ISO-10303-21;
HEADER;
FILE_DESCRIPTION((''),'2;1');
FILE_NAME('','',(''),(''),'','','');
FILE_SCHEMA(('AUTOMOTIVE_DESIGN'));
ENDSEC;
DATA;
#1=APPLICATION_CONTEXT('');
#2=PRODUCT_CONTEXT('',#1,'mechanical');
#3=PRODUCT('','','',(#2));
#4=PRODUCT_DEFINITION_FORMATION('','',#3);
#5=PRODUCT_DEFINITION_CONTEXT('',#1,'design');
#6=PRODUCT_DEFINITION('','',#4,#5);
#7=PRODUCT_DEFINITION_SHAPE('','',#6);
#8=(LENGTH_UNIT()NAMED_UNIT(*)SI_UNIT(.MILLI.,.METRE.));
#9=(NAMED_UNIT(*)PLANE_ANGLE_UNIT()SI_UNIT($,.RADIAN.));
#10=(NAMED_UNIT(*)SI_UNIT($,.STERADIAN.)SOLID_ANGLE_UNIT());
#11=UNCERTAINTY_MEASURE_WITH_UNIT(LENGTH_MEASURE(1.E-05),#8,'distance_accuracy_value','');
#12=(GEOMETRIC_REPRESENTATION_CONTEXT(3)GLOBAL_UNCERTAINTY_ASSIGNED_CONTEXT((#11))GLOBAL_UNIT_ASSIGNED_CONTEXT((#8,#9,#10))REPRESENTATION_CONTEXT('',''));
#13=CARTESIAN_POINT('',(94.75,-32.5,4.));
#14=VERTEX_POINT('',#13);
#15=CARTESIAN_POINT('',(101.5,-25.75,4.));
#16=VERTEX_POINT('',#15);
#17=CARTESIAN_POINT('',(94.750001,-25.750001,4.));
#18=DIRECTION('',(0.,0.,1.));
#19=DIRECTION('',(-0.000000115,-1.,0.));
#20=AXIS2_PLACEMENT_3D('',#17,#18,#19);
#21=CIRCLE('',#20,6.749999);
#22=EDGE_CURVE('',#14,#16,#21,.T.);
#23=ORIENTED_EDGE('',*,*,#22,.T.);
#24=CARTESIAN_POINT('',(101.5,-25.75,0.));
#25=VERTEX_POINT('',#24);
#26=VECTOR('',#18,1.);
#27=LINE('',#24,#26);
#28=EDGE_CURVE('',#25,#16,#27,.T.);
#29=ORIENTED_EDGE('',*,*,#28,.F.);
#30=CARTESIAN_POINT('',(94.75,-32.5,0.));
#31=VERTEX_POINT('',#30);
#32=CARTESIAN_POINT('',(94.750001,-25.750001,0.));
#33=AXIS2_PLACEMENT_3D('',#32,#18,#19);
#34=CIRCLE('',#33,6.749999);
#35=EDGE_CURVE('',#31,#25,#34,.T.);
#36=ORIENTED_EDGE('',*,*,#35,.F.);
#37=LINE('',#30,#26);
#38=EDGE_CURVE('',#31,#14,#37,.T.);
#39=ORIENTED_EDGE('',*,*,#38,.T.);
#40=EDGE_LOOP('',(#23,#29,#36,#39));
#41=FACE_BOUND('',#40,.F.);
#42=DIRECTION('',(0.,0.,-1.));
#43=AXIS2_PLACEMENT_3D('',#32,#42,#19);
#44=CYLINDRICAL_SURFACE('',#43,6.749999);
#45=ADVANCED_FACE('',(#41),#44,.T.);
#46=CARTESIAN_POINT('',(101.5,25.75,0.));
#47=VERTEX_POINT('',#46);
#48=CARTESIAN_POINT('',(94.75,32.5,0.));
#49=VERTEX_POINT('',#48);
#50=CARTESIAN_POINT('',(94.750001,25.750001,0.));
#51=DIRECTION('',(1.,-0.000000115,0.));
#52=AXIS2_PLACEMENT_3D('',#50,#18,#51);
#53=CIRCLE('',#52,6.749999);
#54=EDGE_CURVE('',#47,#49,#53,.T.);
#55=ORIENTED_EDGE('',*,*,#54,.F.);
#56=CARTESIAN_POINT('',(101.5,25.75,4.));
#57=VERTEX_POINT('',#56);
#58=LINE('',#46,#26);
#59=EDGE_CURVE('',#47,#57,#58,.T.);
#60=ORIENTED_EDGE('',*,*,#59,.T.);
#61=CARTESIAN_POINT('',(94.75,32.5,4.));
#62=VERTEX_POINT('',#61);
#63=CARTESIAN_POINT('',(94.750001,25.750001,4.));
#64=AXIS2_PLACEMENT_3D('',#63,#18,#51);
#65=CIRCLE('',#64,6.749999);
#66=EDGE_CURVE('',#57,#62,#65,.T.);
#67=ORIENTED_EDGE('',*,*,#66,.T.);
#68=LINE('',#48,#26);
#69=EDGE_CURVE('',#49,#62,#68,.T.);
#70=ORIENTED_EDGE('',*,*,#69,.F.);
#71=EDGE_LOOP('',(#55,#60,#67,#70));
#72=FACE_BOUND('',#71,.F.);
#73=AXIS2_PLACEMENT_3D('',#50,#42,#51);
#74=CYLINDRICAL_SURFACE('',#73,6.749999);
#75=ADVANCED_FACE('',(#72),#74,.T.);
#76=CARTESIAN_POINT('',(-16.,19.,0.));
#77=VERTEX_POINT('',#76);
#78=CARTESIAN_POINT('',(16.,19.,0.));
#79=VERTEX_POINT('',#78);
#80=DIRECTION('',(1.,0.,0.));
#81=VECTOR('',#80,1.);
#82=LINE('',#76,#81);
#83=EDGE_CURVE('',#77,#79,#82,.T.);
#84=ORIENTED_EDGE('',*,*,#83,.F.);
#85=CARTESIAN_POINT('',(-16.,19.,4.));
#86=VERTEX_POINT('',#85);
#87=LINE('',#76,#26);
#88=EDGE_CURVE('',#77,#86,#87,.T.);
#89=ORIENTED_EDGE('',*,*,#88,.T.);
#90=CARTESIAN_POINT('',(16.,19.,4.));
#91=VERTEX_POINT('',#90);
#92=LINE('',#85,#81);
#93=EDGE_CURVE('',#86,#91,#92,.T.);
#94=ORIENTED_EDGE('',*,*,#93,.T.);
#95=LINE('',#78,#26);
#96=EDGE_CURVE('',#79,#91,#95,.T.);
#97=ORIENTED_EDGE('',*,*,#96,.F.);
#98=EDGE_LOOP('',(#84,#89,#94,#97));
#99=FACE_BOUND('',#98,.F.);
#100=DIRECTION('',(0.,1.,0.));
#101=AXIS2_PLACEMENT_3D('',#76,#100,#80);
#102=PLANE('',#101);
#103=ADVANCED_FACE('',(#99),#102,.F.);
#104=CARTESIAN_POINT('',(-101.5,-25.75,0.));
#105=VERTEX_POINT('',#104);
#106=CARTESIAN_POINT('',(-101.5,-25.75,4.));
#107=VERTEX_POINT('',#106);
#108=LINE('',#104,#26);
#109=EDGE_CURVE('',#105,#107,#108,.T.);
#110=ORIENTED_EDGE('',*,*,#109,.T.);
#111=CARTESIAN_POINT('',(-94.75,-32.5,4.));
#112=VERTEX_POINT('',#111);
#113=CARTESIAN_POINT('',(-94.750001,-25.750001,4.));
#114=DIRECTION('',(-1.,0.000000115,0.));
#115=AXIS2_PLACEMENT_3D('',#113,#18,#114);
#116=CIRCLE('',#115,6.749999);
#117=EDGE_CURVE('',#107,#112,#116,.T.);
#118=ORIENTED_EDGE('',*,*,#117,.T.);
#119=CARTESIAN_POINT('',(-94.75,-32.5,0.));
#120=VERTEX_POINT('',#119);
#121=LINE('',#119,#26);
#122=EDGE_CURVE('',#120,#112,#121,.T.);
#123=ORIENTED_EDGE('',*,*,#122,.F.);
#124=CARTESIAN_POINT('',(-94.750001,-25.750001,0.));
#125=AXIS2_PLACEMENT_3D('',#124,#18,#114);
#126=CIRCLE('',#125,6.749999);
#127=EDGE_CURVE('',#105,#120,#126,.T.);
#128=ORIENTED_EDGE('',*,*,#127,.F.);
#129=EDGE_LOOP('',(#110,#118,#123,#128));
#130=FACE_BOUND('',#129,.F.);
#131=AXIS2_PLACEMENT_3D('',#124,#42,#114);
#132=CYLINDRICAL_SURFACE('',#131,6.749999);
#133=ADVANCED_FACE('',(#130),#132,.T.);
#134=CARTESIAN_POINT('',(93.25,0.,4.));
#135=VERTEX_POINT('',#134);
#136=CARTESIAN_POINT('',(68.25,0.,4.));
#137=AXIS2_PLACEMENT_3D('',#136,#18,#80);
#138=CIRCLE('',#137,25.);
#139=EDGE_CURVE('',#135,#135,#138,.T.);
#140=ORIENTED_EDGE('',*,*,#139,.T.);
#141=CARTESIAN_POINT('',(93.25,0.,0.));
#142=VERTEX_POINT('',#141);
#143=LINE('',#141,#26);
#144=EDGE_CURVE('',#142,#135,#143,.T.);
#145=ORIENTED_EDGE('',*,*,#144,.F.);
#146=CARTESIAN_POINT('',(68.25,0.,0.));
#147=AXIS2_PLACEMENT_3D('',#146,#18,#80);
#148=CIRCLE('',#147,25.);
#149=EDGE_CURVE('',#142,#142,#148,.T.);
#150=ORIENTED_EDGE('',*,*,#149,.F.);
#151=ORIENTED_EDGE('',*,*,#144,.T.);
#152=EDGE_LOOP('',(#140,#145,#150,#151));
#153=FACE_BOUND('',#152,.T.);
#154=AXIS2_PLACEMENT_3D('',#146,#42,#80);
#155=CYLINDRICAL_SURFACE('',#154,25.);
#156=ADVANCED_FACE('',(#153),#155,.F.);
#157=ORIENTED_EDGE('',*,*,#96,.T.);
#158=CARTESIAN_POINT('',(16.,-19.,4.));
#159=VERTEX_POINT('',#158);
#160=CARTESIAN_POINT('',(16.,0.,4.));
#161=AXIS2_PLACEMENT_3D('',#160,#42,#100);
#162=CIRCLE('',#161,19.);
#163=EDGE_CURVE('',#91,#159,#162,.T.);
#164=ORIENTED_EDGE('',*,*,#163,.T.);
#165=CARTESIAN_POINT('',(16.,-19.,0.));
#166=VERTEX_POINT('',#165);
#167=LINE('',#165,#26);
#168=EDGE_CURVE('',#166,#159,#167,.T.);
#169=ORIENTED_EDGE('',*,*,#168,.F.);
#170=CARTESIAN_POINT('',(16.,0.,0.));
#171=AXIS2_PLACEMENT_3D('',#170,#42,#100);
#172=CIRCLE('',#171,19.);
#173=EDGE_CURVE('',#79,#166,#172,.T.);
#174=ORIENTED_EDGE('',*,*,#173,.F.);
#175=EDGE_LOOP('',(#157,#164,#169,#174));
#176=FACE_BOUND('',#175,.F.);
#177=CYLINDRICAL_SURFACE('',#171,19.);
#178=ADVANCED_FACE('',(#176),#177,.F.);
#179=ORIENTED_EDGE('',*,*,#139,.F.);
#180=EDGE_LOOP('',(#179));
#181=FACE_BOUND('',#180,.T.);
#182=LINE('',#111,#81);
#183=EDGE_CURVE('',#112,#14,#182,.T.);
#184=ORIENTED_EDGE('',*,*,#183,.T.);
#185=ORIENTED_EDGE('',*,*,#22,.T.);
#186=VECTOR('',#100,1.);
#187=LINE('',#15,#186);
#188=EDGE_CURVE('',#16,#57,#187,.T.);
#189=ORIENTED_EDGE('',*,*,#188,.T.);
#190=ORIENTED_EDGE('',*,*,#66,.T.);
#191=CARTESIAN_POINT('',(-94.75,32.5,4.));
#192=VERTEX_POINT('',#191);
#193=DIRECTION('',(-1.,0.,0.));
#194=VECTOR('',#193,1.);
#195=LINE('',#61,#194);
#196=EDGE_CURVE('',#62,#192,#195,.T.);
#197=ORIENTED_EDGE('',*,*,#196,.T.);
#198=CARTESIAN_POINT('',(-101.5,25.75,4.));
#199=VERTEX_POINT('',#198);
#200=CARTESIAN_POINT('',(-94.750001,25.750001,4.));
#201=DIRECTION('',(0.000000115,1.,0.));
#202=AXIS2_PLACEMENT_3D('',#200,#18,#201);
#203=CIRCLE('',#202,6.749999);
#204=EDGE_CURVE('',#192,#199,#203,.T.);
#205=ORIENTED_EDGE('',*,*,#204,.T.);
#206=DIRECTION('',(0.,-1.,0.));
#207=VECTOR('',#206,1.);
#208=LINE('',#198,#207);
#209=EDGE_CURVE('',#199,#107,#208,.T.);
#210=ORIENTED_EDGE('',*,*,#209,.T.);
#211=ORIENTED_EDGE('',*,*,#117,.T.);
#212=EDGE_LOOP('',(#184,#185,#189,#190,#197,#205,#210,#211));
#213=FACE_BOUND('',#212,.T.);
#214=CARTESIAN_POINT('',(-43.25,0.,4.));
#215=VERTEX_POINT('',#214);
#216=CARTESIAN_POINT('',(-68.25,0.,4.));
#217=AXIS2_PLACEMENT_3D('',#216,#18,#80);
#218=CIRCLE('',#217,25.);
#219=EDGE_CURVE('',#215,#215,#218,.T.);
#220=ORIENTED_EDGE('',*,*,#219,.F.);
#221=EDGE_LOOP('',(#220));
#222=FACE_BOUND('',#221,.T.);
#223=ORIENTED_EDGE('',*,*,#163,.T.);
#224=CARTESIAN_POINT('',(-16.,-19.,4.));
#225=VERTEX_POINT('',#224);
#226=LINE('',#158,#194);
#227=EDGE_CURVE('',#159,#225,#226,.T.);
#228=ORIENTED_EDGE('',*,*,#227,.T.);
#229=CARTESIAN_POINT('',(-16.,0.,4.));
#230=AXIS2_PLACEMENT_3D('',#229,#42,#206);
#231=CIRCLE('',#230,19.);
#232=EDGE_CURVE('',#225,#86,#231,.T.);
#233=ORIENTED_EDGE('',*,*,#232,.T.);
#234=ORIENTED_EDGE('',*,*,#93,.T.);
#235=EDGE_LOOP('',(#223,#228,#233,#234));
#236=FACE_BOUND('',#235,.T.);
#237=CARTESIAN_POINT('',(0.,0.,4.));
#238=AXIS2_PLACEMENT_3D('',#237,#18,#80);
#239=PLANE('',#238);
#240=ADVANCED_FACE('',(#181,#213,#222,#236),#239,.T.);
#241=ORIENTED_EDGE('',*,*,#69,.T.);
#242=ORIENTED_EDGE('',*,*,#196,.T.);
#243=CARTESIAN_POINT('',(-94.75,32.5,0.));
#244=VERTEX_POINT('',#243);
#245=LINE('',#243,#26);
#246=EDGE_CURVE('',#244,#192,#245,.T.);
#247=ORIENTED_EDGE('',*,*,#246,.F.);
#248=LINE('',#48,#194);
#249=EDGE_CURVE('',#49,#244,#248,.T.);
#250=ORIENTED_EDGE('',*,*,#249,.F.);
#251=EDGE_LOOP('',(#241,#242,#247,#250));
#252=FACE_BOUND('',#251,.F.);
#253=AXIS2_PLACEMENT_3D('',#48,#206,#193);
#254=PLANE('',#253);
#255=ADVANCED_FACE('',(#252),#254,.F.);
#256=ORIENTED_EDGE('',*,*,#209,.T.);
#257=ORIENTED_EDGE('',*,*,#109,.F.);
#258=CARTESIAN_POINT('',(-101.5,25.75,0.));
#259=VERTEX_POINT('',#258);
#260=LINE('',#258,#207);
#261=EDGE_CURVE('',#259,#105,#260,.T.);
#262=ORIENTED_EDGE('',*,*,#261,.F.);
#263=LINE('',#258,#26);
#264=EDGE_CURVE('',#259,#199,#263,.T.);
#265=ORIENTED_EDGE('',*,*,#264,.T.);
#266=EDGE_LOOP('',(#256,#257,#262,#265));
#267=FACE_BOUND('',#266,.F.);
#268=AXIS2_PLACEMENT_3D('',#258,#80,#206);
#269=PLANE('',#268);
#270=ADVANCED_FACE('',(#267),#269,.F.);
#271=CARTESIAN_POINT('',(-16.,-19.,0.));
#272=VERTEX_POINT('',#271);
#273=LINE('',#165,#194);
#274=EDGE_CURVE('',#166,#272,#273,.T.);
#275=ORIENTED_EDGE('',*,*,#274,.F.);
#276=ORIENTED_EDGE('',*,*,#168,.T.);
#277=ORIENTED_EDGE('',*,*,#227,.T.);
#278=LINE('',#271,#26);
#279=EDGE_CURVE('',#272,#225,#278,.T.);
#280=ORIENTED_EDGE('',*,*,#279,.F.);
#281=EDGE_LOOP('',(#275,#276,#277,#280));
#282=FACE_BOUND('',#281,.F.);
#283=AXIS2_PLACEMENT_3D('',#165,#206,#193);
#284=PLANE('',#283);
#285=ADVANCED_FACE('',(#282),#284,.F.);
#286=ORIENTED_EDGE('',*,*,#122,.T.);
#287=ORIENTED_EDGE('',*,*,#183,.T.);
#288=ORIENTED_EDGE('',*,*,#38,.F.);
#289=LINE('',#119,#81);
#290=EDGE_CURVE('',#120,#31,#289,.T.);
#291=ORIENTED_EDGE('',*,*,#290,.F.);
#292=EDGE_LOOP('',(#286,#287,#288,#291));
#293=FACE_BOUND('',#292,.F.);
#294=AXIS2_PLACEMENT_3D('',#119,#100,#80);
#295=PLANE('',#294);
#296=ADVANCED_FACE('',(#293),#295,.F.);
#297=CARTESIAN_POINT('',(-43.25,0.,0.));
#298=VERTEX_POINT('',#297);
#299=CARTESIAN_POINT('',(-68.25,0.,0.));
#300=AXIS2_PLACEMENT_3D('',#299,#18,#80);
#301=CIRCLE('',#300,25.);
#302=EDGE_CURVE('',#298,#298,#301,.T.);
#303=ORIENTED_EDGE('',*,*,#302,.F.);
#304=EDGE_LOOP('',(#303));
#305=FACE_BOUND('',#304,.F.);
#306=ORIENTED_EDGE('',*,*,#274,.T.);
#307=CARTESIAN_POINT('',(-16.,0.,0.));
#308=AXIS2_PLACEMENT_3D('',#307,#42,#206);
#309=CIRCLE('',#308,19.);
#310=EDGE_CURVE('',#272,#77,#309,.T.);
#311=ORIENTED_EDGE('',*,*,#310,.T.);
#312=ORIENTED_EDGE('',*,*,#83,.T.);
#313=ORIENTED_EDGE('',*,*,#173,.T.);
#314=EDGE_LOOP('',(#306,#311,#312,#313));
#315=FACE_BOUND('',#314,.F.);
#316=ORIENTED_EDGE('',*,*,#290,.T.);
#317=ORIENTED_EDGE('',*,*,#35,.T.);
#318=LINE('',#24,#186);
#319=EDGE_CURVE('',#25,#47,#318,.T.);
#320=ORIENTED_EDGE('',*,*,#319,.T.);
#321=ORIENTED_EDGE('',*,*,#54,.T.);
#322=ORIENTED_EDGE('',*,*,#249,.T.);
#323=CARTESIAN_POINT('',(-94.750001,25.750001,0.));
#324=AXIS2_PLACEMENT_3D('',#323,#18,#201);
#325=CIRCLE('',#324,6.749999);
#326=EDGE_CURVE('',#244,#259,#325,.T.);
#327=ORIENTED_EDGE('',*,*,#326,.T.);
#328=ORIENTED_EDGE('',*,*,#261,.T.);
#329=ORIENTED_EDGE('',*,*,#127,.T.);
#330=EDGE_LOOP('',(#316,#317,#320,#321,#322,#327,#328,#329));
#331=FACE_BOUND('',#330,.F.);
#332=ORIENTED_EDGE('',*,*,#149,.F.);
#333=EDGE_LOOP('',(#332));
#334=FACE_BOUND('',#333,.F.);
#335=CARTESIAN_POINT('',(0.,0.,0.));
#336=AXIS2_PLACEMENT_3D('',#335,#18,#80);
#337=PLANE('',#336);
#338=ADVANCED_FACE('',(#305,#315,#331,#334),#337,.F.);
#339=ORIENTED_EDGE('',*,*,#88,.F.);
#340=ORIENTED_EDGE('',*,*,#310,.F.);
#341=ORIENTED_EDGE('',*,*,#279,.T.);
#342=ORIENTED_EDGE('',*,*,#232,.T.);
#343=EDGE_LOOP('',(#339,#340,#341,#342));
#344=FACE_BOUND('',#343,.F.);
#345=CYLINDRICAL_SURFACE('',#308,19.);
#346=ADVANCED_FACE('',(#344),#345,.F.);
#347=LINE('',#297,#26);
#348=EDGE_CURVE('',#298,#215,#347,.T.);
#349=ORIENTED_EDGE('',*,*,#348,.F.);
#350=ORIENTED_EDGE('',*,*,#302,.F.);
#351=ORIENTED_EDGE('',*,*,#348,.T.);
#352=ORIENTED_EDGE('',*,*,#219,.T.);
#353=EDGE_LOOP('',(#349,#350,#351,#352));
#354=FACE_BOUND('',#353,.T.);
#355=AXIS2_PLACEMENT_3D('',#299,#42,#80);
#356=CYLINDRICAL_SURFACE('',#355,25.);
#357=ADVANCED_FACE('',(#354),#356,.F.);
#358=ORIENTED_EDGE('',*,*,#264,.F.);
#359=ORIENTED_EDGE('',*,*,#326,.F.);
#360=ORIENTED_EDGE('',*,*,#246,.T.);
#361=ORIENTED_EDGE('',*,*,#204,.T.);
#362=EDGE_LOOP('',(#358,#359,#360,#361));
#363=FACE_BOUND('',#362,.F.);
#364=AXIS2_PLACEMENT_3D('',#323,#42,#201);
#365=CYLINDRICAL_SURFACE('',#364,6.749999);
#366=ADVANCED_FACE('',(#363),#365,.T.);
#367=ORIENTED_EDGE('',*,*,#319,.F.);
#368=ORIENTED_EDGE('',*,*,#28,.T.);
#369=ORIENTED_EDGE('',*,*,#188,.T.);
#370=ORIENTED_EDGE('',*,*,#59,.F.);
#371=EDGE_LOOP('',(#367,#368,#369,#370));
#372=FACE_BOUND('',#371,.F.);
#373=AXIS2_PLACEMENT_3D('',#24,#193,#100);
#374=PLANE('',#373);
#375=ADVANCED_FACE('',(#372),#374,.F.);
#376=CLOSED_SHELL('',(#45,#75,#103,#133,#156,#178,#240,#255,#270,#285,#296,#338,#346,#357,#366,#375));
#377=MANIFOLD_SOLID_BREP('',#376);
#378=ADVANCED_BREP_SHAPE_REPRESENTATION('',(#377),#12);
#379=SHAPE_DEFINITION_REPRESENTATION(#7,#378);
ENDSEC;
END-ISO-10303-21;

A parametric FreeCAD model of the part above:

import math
import FreeCAD as App
import Part
import Sketcher

V = App.Vector

doc = App.newDocument("Part")
params = doc.addObject("Spreadsheet::Sheet", "Params")
for row, (alias, value) in enumerate([
    ("sketch1_diameter", "50 mm"),
    ("sketch1_radius", "19 mm"),
    ("sketch1_width", "32 mm"),
    ("sketch1_radius2", "6.749999 mm"),
    ("sketch1_width2", "189.5 mm"),
    ("pad1_length", "4 mm"),
], start=1):
    params.set(f"A{row}", alias)
    params.set(f"B{row}", "=" + value)
    params.setAlias(f"B{row}", alias)

body = doc.addObject("PartDesign::Body", "Body")

# Sketch on XY plane
sketch1 = body.newObject("Sketcher::SketchObject", "Sketch")
sketch1.AttachmentSupport = (doc.getObject("XY_Plane"), [""])
sketch1.MapMode = "FlatFace"
sketch1.addGeometry([
    Part.LineSegment(V(-95, -32, 0), V(95, -32, 0)),  # 0
    Part.ArcOfCircle(Part.Circle(V(95, -26, 0), V(0, 0, 1), 7), math.radians(-90), math.radians(0)),  # 1
    Part.LineSegment(V(102, -26, 0), V(102, 26, 0)),  # 2
    Part.ArcOfCircle(Part.Circle(V(95, 26, 0), V(0, 0, 1), 7), math.radians(0), math.radians(90)),  # 3
    Part.LineSegment(V(95, 32, 0), V(-95, 32, 0)),  # 4
    Part.ArcOfCircle(Part.Circle(V(-95, 26, 0), V(0, 0, 1), 7), math.radians(90), math.radians(180)),  # 5
    Part.LineSegment(V(-102, 26, 0), V(-102, -26, 0)),  # 6
    Part.ArcOfCircle(Part.Circle(V(-95, -26, 0), V(0, 0, 1), 7), math.radians(180), math.radians(270)),  # 7
    Part.Circle(V(-68, 0, 0), V(0, 0, 1), 25),  # 8
    Part.LineSegment(V(-16, 19, 0), V(16, 19, 0)),  # 9
    Part.ArcOfCircle(Part.Circle(V(16, 0, 0), V(0, 0, 1), 19), math.radians(-90), math.radians(90)),  # 10
    Part.LineSegment(V(16, -19, 0), V(-16, -19, 0)),  # 11
    Part.ArcOfCircle(Part.Circle(V(-16, 0, 0), V(0, 0, 1), 19), math.radians(90), math.radians(270)),  # 12
    Part.Circle(V(68, 0, 0), V(0, 0, 1), 25),  # 13
], False)
sketch1.addConstraint([
    Sketcher.Constraint("Tangent", 0, 2, 1, 1),
    Sketcher.Constraint("Tangent", 1, 2, 2, 1),
    Sketcher.Constraint("Tangent", 2, 2, 3, 1),
    Sketcher.Constraint("Tangent", 3, 2, 4, 1),
    Sketcher.Constraint("Tangent", 4, 2, 5, 1),
    Sketcher.Constraint("Tangent", 5, 2, 6, 1),
    Sketcher.Constraint("Tangent", 6, 2, 7, 1),
    Sketcher.Constraint("Tangent", 7, 2, 0, 1),
    Sketcher.Constraint("Tangent", 9, 2, 10, 2),
    Sketcher.Constraint("Tangent", 10, 1, 11, 1),
    Sketcher.Constraint("Tangent", 11, 2, 12, 2),
    Sketcher.Constraint("Tangent", 12, 1, 9, 1),
    Sketcher.Constraint("Horizontal", 0),
    Sketcher.Constraint("Vertical", 2),
    Sketcher.Constraint("Horizontal", 4),
    Sketcher.Constraint("Vertical", 6),
    Sketcher.Constraint("Horizontal", 9),
    Sketcher.Constraint("Horizontal", 11),
    Sketcher.Constraint("Equal", 1, 3),
    Sketcher.Constraint("Equal", 3, 5),
    Sketcher.Constraint("Equal", 5, 7),
    Sketcher.Constraint("Equal", 8, 13),
    Sketcher.Constraint("Symmetric", 1, 3, 5, 3, -1, 1),
    Sketcher.Constraint("Symmetric", 10, 3, 12, 3, -1, 1),
    Sketcher.Constraint("Symmetric", 8, 3, 13, 3, -1, 1),
    Sketcher.Constraint("PointOnObject", 8, 3, -1),
    Sketcher.Constraint("Diameter", 8, 50.0),
    Sketcher.Constraint("Radius", 10, 19.0),
    Sketcher.Constraint("DistanceX", 9, 1, 9, 2, 32.0),
    Sketcher.Constraint("Radius", 1, 6.749999),
    Sketcher.Constraint("DistanceX", 0, 1, 0, 2, 189.5),
    Sketcher.Constraint("DistanceY", 2, 1, 2, 2, 51.5),
    Sketcher.Constraint("DistanceX", 8, 3, 1, 3, 163.000001),
])
sketch1.setExpression("Constraints[26]", "Params.sketch1_diameter")
sketch1.setExpression("Constraints[27]", "Params.sketch1_radius")
sketch1.setExpression("Constraints[28]", "Params.sketch1_width")
sketch1.setExpression("Constraints[29]", "Params.sketch1_radius2")
sketch1.setExpression("Constraints[30]", "Params.sketch1_width2")
pad1 = body.newObject("PartDesign::Pad", "Pad")
pad1.Profile = sketch1
pad1.setExpression("Length", "Params.pad1_length")

doc.recompute()
